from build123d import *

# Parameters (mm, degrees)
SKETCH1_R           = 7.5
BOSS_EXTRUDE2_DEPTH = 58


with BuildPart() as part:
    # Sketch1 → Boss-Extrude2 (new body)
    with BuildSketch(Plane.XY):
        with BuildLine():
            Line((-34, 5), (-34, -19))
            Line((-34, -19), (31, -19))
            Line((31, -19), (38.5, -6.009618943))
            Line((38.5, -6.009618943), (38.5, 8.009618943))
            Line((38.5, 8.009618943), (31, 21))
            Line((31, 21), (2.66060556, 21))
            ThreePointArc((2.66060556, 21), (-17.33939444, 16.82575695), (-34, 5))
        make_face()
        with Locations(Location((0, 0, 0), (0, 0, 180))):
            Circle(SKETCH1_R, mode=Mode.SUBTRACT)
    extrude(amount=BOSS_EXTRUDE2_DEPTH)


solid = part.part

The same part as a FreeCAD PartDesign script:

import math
import FreeCAD as App
import Part
import Sketcher

V = App.Vector
Q = App.Units.Quantity

doc = App.newDocument("Part")
params = doc.addObject("Spreadsheet::Sheet", "Params")
for row, (alias, value) in enumerate([
    ("sketch1_diameter", "15 mm"),
    ("sketch1_radius", "50 mm"),
    ("sketch1_width", "65 mm"),
    ("sketch1_height", "24 mm"),
    ("sketch1_length", "15 mm"),
    ("pad1_length", "58 mm"),
], start=1):
    params.set(f"A{row}", alias)
    params.set(f"B{row}", "=" + value)
    params.setAlias(f"B{row}", alias)

body = doc.addObject("PartDesign::Body", "Body")

# Sketch on XY plane
sketch1 = body.newObject("Sketcher::SketchObject", "Sketch")
sketch1.AttachmentSupport = (doc.getObject("XY_Plane"), [""])
sketch1.MapMode = "FlatFace"
sketch1.addGeometry(Part.LineSegment(V(-34, 5, 0), V(-34, -19, 0)), False)
sketch1.addGeometry(Part.LineSegment(V(-34, -19, 0), V(31, -19, 0)), False)
sketch1.addGeometry(Part.LineSegment(V(31, -19, 0), V(38, -6, 0)), False)
sketch1.addGeometry(Part.LineSegment(V(38, -6, 0), V(38, 8, 0)), False)
sketch1.addGeometry(Part.LineSegment(V(38, 8, 0), V(31, 21, 0)), False)
sketch1.addGeometry(Part.LineSegment(V(31, 21, 0), V(3, 21, 0)), False)
sketch1.addGeometry(Part.ArcOfCircle(Part.Circle(V(3, -29, 0), V(0, 0, 1), 50), math.radians(90), math.radians(137)), False)
sketch1.addGeometry(Part.Circle(V(0, 0, 0), V(0, 0, 1), 8), False)
sketch1.addConstraint(Sketcher.Constraint("Coincident", 0, 2, 1, 1))
sketch1.addConstraint(Sketcher.Constraint("Coincident", 1, 2, 2, 1))
sketch1.addConstraint(Sketcher.Constraint("Coincident", 2, 2, 3, 1))
sketch1.addConstraint(Sketcher.Constraint("Coincident", 3, 2, 4, 1))
sketch1.addConstraint(Sketcher.Constraint("Coincident", 4, 2, 5, 1))
sketch1.addConstraint(Sketcher.Constraint("Tangent", 5, 2, 6, 1))
sketch1.addConstraint(Sketcher.Constraint("Coincident", 6, 2, 0, 1))
sketch1.addConstraint(Sketcher.Constraint("Vertical", 0))
sketch1.addConstraint(Sketcher.Constraint("Horizontal", 1))
sketch1.addConstraint(Sketcher.Constraint("Vertical", 3))
sketch1.addConstraint(Sketcher.Constraint("Horizontal", 5))
sketch1.addConstraint(Sketcher.Constraint("Coincident", 7, 3, -1, 1))
sketch1.addConstraint(Sketcher.Constraint("Vertical", 1, 2, 4, 2))
sketch1.addConstraint(Sketcher.Constraint("Equal", 2, 4))
sketch1.addConstraint(Sketcher.Constraint("Diameter", 7, 15.0))
sketch1.addConstraint(Sketcher.Constraint("Radius", 6, 50.0))
sketch1.addConstraint(Sketcher.Constraint("DistanceX", 1, 1, 1, 2, 65.0))
sketch1.addConstraint(Sketcher.Constraint("DistanceY", 0, 2, 0, 1, 24.0))
sketch1.addConstraint(Sketcher.Constraint("Angle", 2, Q("60 deg")))
sketch1.addConstraint(Sketcher.Constraint("Distance", 2, 15.0))
sketch1.addConstraint(Sketcher.Constraint("DistanceY", 6, 3, -1, 1, 29.0))
sketch1.addConstraint(Sketcher.Constraint("DistanceX", 0, 2, -1, 1, 34.0))
sketch1.addConstraint(Sketcher.Constraint("DistanceY", 0, 2, -1, 1, 19.0))
sketch1.setExpression("Constraints[14]", "Params.sketch1_diameter")
sketch1.setExpression("Constraints[15]", "Params.sketch1_radius")
sketch1.setExpression("Constraints[16]", "Params.sketch1_width")
sketch1.setExpression("Constraints[17]", "Params.sketch1_height")
sketch1.setExpression("Constraints[19]", "Params.sketch1_length")
pad1 = body.newObject("PartDesign::Pad", "Pad")
pad1.Profile = sketch1
pad1.setExpression("Length", "Params.pad1_length")

doc.recompute()
